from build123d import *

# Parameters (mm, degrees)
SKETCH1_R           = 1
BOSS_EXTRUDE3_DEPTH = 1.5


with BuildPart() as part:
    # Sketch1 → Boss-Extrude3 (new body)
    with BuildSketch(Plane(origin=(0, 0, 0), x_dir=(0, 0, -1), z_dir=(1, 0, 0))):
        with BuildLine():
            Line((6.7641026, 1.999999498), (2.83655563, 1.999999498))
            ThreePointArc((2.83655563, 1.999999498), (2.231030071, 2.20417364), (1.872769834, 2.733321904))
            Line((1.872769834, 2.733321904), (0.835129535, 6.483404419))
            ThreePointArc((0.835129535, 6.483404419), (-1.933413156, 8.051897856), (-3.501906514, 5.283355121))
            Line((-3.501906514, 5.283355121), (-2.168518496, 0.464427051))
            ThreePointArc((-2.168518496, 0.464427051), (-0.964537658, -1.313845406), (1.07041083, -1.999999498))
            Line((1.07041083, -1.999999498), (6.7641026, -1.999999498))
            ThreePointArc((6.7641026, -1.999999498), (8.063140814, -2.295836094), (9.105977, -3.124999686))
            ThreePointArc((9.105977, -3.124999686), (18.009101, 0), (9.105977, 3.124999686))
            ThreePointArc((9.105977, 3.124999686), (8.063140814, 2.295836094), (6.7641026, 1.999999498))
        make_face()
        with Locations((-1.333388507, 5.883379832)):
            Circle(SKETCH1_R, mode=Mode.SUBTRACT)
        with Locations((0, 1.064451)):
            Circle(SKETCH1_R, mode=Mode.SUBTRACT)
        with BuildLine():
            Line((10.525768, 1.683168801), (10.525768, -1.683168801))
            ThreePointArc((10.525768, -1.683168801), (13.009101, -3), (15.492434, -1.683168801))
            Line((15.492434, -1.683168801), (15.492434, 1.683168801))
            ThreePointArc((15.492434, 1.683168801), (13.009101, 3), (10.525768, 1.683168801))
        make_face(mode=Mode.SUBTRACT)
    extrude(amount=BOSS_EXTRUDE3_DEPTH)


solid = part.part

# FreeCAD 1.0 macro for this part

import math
import FreeCAD as App
import Part
import Sketcher

V = App.Vector

doc = App.newDocument("Part")
params = doc.addObject("Spreadsheet::Sheet", "Params")
for row, (alias, value) in enumerate([
    ("sketch1_diameter", "2 mm"),
    ("sketch1_radius", "3 mm"),
    ("sketch1_radius2", "5 mm"),
    ("sketch1_radius3", "2.25 mm"),
    ("sketch1_length", "4.999999 mm"),
    ("pad1_length", "1.5 mm"),
], start=1):
    params.set(f"A{row}", alias)
    params.set(f"B{row}", "=" + value)
    params.setAlias(f"B{row}", alias)

body = doc.addObject("PartDesign::Body", "Body")

# Sketch on YZ plane
sketch1 = body.newObject("Sketcher::SketchObject", "Sketch")
sketch1.AttachmentSupport = (doc.getObject("YZ_Plane"), [""])
sketch1.MapMode = "FlatFace"
sketch1.addGeometry([
    Part.LineSegment(V(2, -6.8, 0), V(2, -2.8, 0)),  # 0
    Part.ArcOfCircle(Part.Circle(V(3, -2.8, 0), V(0, 0, 1), 1), math.radians(105), math.radians(180)),  # 1
    Part.LineSegment(V(2.7, -1.9, 0), V(6.5, -0.8, 0)),  # 2
    Part.ArcOfCircle(Part.Circle(V(5.9, 1.3, 0), V(0, 0, 1), 2.2), math.radians(-75), math.radians(105)),  # 3
    Part.LineSegment(V(5.3, 3.5, 0), V(0.5, 2.2, 0)),  # 4
    Part.ArcOfCircle(Part.Circle(V(1.4, -1.1, 0), V(0, 0, 1), 3.4), math.radians(105), math.radians(180)),  # 5
    Part.LineSegment(V(-2, -1.1, 0), V(-2, -6.8, 0)),  # 6
    Part.ArcOfCircle(Part.Circle(V(-5, -6.8, 0), V(0, 0, 1), 3), math.radians(-51), math.radians(0)),  # 7
    Part.ArcOfCircle(Part.Circle(V(0, -13, 0), V(0, 0, 1), 5), math.radians(129), math.radians(411)),  # 8
    Part.ArcOfCircle(Part.Circle(V(5, -6.8, 0), V(0, 0, 1), 3), math.radians(-180), math.radians(-129)),  # 9
    Part.Circle(V(1.1, 0, 0), V(0, 0, 1), 1),  # 10
    Part.LineSegment(V(-1.7, -10.5, 0), V(1.7, -10.5, 0)),  # 11
    Part.ArcOfCircle(Part.Circle(V(0, -13, 0), V(0, 0, 1), 3), math.radians(-56), math.radians(56)),  # 12
    Part.LineSegment(V(1.7, -15.5, 0), V(-1.7, -15.5, 0)),  # 13
    Part.ArcOfCircle(Part.Circle(V(0, -13, 0), V(0, 0, 1), 3), math.radians(124), math.radians(236)),  # 14
    Part.Circle(V(5.9, 1.3, 0), V(0, 0, 1), 1),  # 15
], False)
sketch1.addConstraint([
    Sketcher.Constraint("Tangent", 0, 2, 1, 2),
    Sketcher.Constraint("Tangent", 1, 1, 2, 1),
    Sketcher.Constraint("Tangent", 2, 2, 3, 1),
    Sketcher.Constraint("Tangent", 3, 2, 4, 1),
    Sketcher.Constraint("Tangent", 4, 2, 5, 1),
    Sketcher.Constraint("Tangent", 5, 2, 6, 1),
    Sketcher.Constraint("Tangent", 6, 2, 7, 2),
    Sketcher.Constraint("Tangent", 7, 1, 8, 1),
    Sketcher.Constraint("Tangent", 8, 2, 9, 2),
    Sketcher.Constraint("Tangent", 9, 1, 0, 1),
    Sketcher.Constraint("Coincident", 11, 2, 12, 2),
    Sketcher.Constraint("Coincident", 12, 1, 13, 1),
    Sketcher.Constraint("Coincident", 13, 2, 14, 2),
    Sketcher.Constraint("Coincident", 14, 1, 11, 1),
    Sketcher.Constraint("Vertical", 0),
    Sketcher.Constraint("Vertical", 6),
    Sketcher.Constraint("Horizontal", 11),
    Sketcher.Constraint("Horizontal", 13),
    Sketcher.Constraint("Coincident", 12, 3, 8, 3),
    Sketcher.Constraint("Coincident", 14, 3, 8, 3),
    Sketcher.Constraint("Coincident", 15, 3, 3, 3),
    Sketcher.Constraint("Equal", 7, 9),
    Sketcher.Constraint("Equal", 1, 10),
    Sketcher.Constraint("Equal", 9, 12),
    Sketcher.Constraint("Equal", 12, 14),
    Sketcher.Constraint("Equal", 10, 15),
    Sketcher.Constraint("Symmetric", 7, 3, 9, 3, -2),
    Sketcher.Constraint("PointOnObject", 10, 3, -1),
    Sketcher.Constraint("Parallel", 2, 4),
    Sketcher.Constraint("Vertical", 11, 2, 12, 1),
    Sketcher.Constraint("Diameter", 10, 2.0),
    Sketcher.Constraint("Radius", 7, 3.0),
    Sketcher.Constraint("Radius", 8, 5.0),
    Sketcher.Constraint("Radius", 3, 2.25),
    Sketcher.Constraint("Distance", 4, 4.999999),
    Sketcher.Constraint("DistanceX", -1, 1, 1, 3, 2.999999),
    Sketcher.Constraint("Radius", 5, 3.360632),
    Sketcher.Constraint("DistanceY", 6, 2, 6, 1, 5.693692),
    Sketcher.Constraint("DistanceY", 8, 3, -1, 1, 13.009101),
    Sketcher.Constraint("DistanceY", 5, 3, 3, 3, 2.403799),
    Sketcher.Constraint("DistanceX", 11, 1, 11, 2, 3.366338),
    Sketcher.Constraint("DistanceX", -1, 1, 10, 3, 1.064451),
])
sketch1.setExpression("Constraints[30]", "Params.sketch1_diameter")
sketch1.setExpression("Constraints[31]", "Params.sketch1_radius")
sketch1.setExpression("Constraints[32]", "Params.sketch1_radius2")
sketch1.setExpression("Constraints[33]", "Params.sketch1_radius3")
sketch1.setExpression("Constraints[34]", "Params.sketch1_length")
pad1 = body.newObject("PartDesign::Pad", "Pad")
pad1.Profile = sketch1
pad1.setExpression("Length", "Params.pad1_length")

doc.recompute()
